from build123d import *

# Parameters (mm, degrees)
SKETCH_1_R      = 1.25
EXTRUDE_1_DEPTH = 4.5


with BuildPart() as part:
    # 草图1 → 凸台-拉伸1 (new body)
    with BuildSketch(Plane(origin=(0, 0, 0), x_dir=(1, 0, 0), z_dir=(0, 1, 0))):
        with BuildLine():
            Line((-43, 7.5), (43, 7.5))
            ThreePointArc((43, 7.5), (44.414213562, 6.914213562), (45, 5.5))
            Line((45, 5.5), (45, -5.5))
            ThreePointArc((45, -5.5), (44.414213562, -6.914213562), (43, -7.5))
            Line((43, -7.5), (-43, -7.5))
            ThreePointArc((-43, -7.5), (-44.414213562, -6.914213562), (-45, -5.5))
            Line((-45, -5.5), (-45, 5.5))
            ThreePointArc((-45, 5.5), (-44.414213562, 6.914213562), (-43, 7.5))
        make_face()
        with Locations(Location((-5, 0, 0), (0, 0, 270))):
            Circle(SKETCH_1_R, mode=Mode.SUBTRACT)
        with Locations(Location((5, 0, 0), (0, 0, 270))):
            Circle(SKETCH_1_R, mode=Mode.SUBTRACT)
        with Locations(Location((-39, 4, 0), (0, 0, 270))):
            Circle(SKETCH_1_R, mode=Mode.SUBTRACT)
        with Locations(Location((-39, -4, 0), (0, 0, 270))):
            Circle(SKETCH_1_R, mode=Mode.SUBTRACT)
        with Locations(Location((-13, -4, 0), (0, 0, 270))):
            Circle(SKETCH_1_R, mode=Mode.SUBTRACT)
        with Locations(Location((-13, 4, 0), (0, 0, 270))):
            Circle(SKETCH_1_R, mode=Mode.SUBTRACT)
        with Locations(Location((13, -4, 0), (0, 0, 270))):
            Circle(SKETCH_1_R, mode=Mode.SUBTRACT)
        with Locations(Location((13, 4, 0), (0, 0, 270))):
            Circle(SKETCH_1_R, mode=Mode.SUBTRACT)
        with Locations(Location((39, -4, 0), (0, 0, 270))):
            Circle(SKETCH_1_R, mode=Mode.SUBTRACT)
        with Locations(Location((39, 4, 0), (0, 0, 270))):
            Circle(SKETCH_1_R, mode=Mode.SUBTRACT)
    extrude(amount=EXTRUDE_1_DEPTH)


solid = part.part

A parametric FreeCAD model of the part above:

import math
import FreeCAD as App
import Part
import Sketcher
Q = App.Units.Quantity

doc = App.newDocument("Part")
body = doc.addObject("PartDesign::Body", "Body")

# Sketch on XZ plane
sketch1 = body.newObject("Sketcher::SketchObject", "Sketch")
sketch1.AttachmentSupport = (doc.getObject("XZ_Plane"), [""])
sketch1.MapMode = "FlatFace"
sketch1.addGeometry([
    Part.LineSegment(App.Vector(43, -7.5, 0), App.Vector(-43, -7.5, 0)),  # 0
    Part.ArcOfCircle(Part.Circle(App.Vector(-43, -5.5, 0), App.Vector(0, 0, 1), 2), math.radians(-180), math.radians(-90)),  # 1
    Part.LineSegment(App.Vector(-45, -5.5, 0), App.Vector(-45, 5.5, 0)),  # 2
    Part.ArcOfCircle(Part.Circle(App.Vector(-43, 5.5, 0), App.Vector(0, 0, 1), 2), math.radians(90), math.radians(180)),  # 3
    Part.LineSegment(App.Vector(-43, 7.5, 0), App.Vector(43, 7.5, 0)),  # 4
    Part.ArcOfCircle(Part.Circle(App.Vector(43, 5.5, 0), App.Vector(0, 0, 1), 2), math.radians(0), math.radians(90)),  # 5
    Part.LineSegment(App.Vector(45, 5.5, 0), App.Vector(45, -5.5, 0)),  # 6
    Part.ArcOfCircle(Part.Circle(App.Vector(43, -5.5, 0), App.Vector(0, 0, 1), 2), math.radians(-90), math.radians(0)),  # 7
    Part.Circle(App.Vector(39, 4, 0), App.Vector(0, 0, 1), 1.2),  # 8
    Part.Circle(App.Vector(13, 4, 0), App.Vector(0, 0, 1), 1.2),  # 9
    Part.Circle(App.Vector(-13, 4, 0), App.Vector(0, 0, 1), 1.2),  # 10
    Part.Circle(App.Vector(-39, 4, 0), App.Vector(0, 0, 1), 1.2),  # 11
    Part.Circle(App.Vector(5, 0, 0), App.Vector(0, 0, 1), 1.2),  # 12
    Part.Circle(App.Vector(39, -4, 0), App.Vector(0, 0, 1), 1.2),  # 13
    Part.Circle(App.Vector(13, -4, 0), App.Vector(0, 0, 1), 1.2),  # 14
    Part.Circle(App.Vector(-5, 0, 0), App.Vector(0, 0, 1), 1.2),  # 15
    Part.Circle(App.Vector(-13, -4, 0), App.Vector(0, 0, 1), 1.2),  # 16
    Part.Circle(App.Vector(-39, -4, 0), App.Vector(0, 0, 1), 1.2),  # 17
], False)
sketch1.addConstraint([
    Sketcher.Constraint("Tangent", 0, 2, 1, 2),
    Sketcher.Constraint("Tangent", 1, 1, 2, 1),
    Sketcher.Constraint("Tangent", 2, 2, 3, 2),
    Sketcher.Constraint("Tangent", 3, 1, 4, 1),
    Sketcher.Constraint("Tangent", 4, 2, 5, 2),
    Sketcher.Constraint("Tangent", 5, 1, 6, 1),
    Sketcher.Constraint("Tangent", 6, 2, 7, 2),
    Sketcher.Constraint("Tangent", 7, 1, 0, 1),
    Sketcher.Constraint("Horizontal", 0),
    Sketcher.Constraint("Vertical", 2),
    Sketcher.Constraint("Horizontal", 4),
    Sketcher.Constraint("Vertical", 6),
    Sketcher.Constraint("Equal", 1, 3),
    Sketcher.Constraint("Equal", 3, 5),
    Sketcher.Constraint("Equal", 5, 7),
    Sketcher.Constraint("Equal", 8, 9),
    Sketcher.Constraint("Equal", 9, 10),
    Sketcher.Constraint("Equal", 10, 11),
    Sketcher.Constraint("Equal", 11, 12),
    Sketcher.Constraint("Equal", 12, 13),
    Sketcher.Constraint("Equal", 13, 14),
    Sketcher.Constraint("Equal", 14, 15),
    Sketcher.Constraint("Equal", 15, 16),
    Sketcher.Constraint("Equal", 16, 17),
    Sketcher.Constraint("Symmetric", 1, 3, 5, 3, -1, 1),
    Sketcher.Constraint("Symmetric", 11, 3, 13, 3, -1, 1),
    Sketcher.Constraint("Symmetric", 10, 3, 14, 3, -1, 1),
    Sketcher.Constraint("Symmetric", 12, 3, 15, 3, -1, 1),
    Sketcher.Constraint("Symmetric", 9, 3, 16, 3, -1, 1),
    Sketcher.Constraint("Symmetric", 8, 3, 17, 3, -1, 1),
    Sketcher.Constraint("Symmetric", 9, 3, 10, 3, -2),
    Sketcher.Constraint("Symmetric", 8, 3, 11, 3, -2),
    Sketcher.Constraint("PointOnObject", 12, 3, -1),
    Sketcher.Constraint("Horizontal", 8, 3, 9, 3),
    Sketcher.Constraint("Radius", 1, Q("2 mm")),
    Sketcher.Constraint("Diameter", 8, Q("2.5 mm")),
    Sketcher.Constraint("DistanceX", 0, 2, 0, 1, Q("86 mm")),
    Sketcher.Constraint("DistanceY", 2, 1, 2, 2, Q("11 mm")),
    Sketcher.Constraint("DistanceX", -1, 1, 8, 3, Q("39 mm")),
    Sketcher.Constraint("DistanceY", -1, 1, 8, 3, Q("4 mm")),
    Sketcher.Constraint("DistanceX", -1, 1, 9, 3, Q("13 mm")),
    Sketcher.Constraint("DistanceX", -1, 1, 12, 3, Q("5 mm")),
])
pad1 = body.newObject("PartDesign::Pad", "Pad")
pad1.Profile = sketch1
pad1.Length = 4.5
pad1.Reversed = True

doc.recompute()
